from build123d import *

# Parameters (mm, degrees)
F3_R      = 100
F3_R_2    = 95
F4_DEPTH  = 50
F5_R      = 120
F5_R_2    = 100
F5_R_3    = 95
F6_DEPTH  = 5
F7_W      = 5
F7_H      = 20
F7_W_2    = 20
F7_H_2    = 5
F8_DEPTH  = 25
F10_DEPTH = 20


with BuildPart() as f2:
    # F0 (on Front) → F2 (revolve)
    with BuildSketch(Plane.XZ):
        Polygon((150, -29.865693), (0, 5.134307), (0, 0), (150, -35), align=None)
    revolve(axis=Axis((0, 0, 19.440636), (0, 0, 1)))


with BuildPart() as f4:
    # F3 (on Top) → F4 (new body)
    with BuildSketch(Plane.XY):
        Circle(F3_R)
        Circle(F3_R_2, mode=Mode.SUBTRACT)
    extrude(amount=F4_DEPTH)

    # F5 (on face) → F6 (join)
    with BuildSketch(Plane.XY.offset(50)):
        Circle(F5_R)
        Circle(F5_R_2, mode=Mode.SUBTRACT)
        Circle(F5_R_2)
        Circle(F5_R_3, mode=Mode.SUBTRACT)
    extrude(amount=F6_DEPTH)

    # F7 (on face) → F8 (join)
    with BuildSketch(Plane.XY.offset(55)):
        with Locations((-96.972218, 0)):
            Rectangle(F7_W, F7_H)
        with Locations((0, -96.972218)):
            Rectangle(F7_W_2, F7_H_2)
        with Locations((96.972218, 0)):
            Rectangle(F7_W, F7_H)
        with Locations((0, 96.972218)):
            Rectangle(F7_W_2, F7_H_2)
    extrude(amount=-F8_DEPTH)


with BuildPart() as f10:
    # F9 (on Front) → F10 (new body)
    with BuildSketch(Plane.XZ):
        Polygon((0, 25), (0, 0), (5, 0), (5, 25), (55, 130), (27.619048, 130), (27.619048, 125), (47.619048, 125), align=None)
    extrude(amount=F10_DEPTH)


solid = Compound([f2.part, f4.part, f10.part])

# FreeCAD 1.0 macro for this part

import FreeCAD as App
import Part
import Sketcher

V = App.Vector
Q = App.Units.Quantity

doc = App.newDocument("Part")
params = doc.addObject("Spreadsheet::Sheet", "Params")
for row, (alias, value) in enumerate([
    ("revolution_angle", "360 deg"),
    ("sketch2_diameter", "200 mm"),
    ("sketch2_diameter2", "190 mm"),
    ("pad1_length", "50 mm"),
    ("sketch3_diameter", "240 mm"),
    ("sketch3_diameter2", "190 mm"),
    ("pad2_length", "5 mm"),
    ("sketch4_width", "5 mm"),
    ("sketch4_width2", "20 mm"),
    ("pad3_length", "25 mm"),
    ("sketch5_width", "5 mm"),
    ("sketch5_width2", "20 mm"),
    ("sketch5_height", "25 mm"),
    ("pad4_length", "20 mm"),
], start=1):
    params.set(f"A{row}", alias)
    params.set(f"B{row}", "=" + value)
    params.setAlias(f"B{row}", alias)

body = doc.addObject("PartDesign::Body", "Body")

# Sketch on XZ plane
sketch1 = body.newObject("Sketcher::SketchObject", "Sketch")
sketch1.AttachmentSupport = (doc.getObject("XZ_Plane"), [""])
sketch1.MapMode = "FlatFace"
sketch1.addGeometry([
    Part.LineSegment(V(150, -30, 0), V(0, 5, 0)),
    Part.LineSegment(V(0, 5, 0), V(0, 0, 0)),
    Part.LineSegment(V(0, 0, 0), V(150, -35, 0)),
    Part.LineSegment(V(150, -35, 0), V(150, -30, 0)),
], False)
sketch1.addConstraint([
    Sketcher.Constraint("Coincident", 0, 2, 1, 1),
    Sketcher.Constraint("Coincident", 1, 2, 2, 1),
    Sketcher.Constraint("Coincident", 2, 2, 3, 1),
    Sketcher.Constraint("Coincident", 3, 2, 0, 1),
    Sketcher.Constraint("Vertical", 1),
    Sketcher.Constraint("Vertical", 3),
    Sketcher.Constraint("Coincident", 1, 2, -1, 1),
    Sketcher.Constraint("Parallel", 0, 2),
    Sketcher.Constraint("DistanceX", -1, 1, 2, 2, Q("150 mm")),
    Sketcher.Constraint("DistanceY", 2, 2, -1, 1, Q("35 mm")),
    Sketcher.Constraint("DistanceY", 1, 2, 1, 1, Q("5.134307 mm")),
])
revolution = body.newObject("PartDesign::Revolution", "Revolution")
revolution.Profile = sketch1
revolution.ReferenceAxis = (sketch1, ["V_Axis"])
revolution.setExpression("Angle", "Params.revolution_angle")
body2 = doc.addObject("PartDesign::Body", "Body001")

# Sketch on XY plane
sketch2 = body2.newObject("Sketcher::SketchObject", "Sketch001")
sketch2.AttachmentSupport = (doc.getObject("XY_Plane001"), [""])
sketch2.MapMode = "FlatFace"
sketch2.addGeometry([
    Part.Circle(V(0, 0, 0), V(0, 0, 1), 100),
    Part.Circle(V(0, 0, 0), V(0, 0, 1), 95),
], False)
sketch2.addConstraint([
    Sketcher.Constraint("Coincident", 0, 3, -1, 1),
    Sketcher.Constraint("Coincident", 1, 3, -1, 1),
    Sketcher.Constraint("Diameter", 0, Q("200 mm")),
    Sketcher.Constraint("Diameter", 1, Q("190 mm")),
])
sketch2.setExpression("Constraints[2]", "Params.sketch2_diameter")
sketch2.setExpression("Constraints[3]", "Params.sketch2_diameter2")
pad1 = body2.newObject("PartDesign::Pad", "Pad")
pad1.Profile = sketch2
pad1.setExpression("Length", "Params.pad1_length")

# Sketch on XY plane
sketch3 = body2.newObject("Sketcher::SketchObject", "Sketch002")
sketch3.AttachmentSupport = (doc.getObject("XY_Plane001"), [""])
sketch3.MapMode = "FlatFace"
sketch3.AttachmentOffset = App.Placement(V(0, 0, 50), App.Rotation())
sketch3.addGeometry([
    Part.Circle(V(0, 0, 0), V(0, 0, 1), 120),
    Part.Circle(V(0, 0, 0), V(0, 0, 1), 95),
], False)
sketch3.addConstraint([
    Sketcher.Constraint("Coincident", 0, 3, -1, 1),
    Sketcher.Constraint("Coincident", 1, 3, -1, 1),
    Sketcher.Constraint("Diameter", 0, Q("240 mm")),
    Sketcher.Constraint("Diameter", 1, Q("190 mm")),
])
sketch3.setExpression("Constraints[2]", "Params.sketch3_diameter")
sketch3.setExpression("Constraints[3]", "Params.sketch3_diameter2")
pad2 = body2.newObject("PartDesign::Pad", "Pad001")
pad2.Profile = sketch3
pad2.setExpression("Length", "Params.pad2_length")

# Sketch on XY plane
sketch4 = body2.newObject("Sketcher::SketchObject", "Sketch003")
sketch4.AttachmentSupport = (doc.getObject("XY_Plane001"), [""])
sketch4.MapMode = "FlatFace"
sketch4.AttachmentOffset = App.Placement(V(0, 0, 55), App.Rotation())
sketch4.addGeometry([
    Part.LineSegment(V(-99, 10, 0), V(-99, -10, 0)),  # 0
    Part.LineSegment(V(-99, -10, 0), V(-94, -10, 0)),  # 1
    Part.LineSegment(V(-94, -10, 0), V(-94, 10, 0)),  # 2
    Part.LineSegment(V(-94, 10, 0), V(-99, 10, 0)),  # 3
    Part.LineSegment(V(-10, -94, 0), V(-10, -99, 0)),  # 4
    Part.LineSegment(V(-10, -99, 0), V(10, -99, 0)),  # 5
    Part.LineSegment(V(10, -99, 0), V(10, -94, 0)),  # 6
    Part.LineSegment(V(10, -94, 0), V(-10, -94, 0)),  # 7
    Part.LineSegment(V(94, 10, 0), V(94, -10, 0)),  # 8
    Part.LineSegment(V(94, -10, 0), V(99, -10, 0)),  # 9
    Part.LineSegment(V(99, -10, 0), V(99, 10, 0)),  # 10
    Part.LineSegment(V(99, 10, 0), V(94, 10, 0)),  # 11
    Part.LineSegment(V(-10, 99, 0), V(-10, 94, 0)),  # 12
    Part.LineSegment(V(-10, 94, 0), V(10, 94, 0)),  # 13
    Part.LineSegment(V(10, 94, 0), V(10, 99, 0)),  # 14
    Part.LineSegment(V(10, 99, 0), V(-10, 99, 0)),  # 15
], False)
sketch4.addConstraint([
    Sketcher.Constraint("Coincident", 0, 2, 1, 1),
    Sketcher.Constraint("Coincident", 1, 2, 2, 1),
    Sketcher.Constraint("Coincident", 2, 2, 3, 1),
    Sketcher.Constraint("Coincident", 3, 2, 0, 1),
    Sketcher.Constraint("Coincident", 4, 2, 5, 1),
    Sketcher.Constraint("Coincident", 5, 2, 6, 1),
    Sketcher.Constraint("Coincident", 6, 2, 7, 1),
    Sketcher.Constraint("Coincident", 7, 2, 4, 1),
    Sketcher.Constraint("Coincident", 8, 2, 9, 1),
    Sketcher.Constraint("Coincident", 9, 2, 10, 1),
    Sketcher.Constraint("Coincident", 10, 2, 11, 1),
    Sketcher.Constraint("Coincident", 11, 2, 8, 1),
    Sketcher.Constraint("Coincident", 12, 2, 13, 1),
    Sketcher.Constraint("Coincident", 13, 2, 14, 1),
    Sketcher.Constraint("Coincident", 14, 2, 15, 1),
    Sketcher.Constraint("Coincident", 15, 2, 12, 1),
    Sketcher.Constraint("Vertical", 0),
    Sketcher.Constraint("Horizontal", 1),
    Sketcher.Constraint("Vertical", 2),
    Sketcher.Constraint("Horizontal", 3),
    Sketcher.Constraint("Vertical", 4),
    Sketcher.Constraint("Horizontal", 5),
    Sketcher.Constraint("Vertical", 6),
    Sketcher.Constraint("Horizontal", 7),
    Sketcher.Constraint("Vertical", 8),
    Sketcher.Constraint("Horizontal", 9),
    Sketcher.Constraint("Vertical", 10),
    Sketcher.Constraint("Horizontal", 11),
    Sketcher.Constraint("Vertical", 12),
    Sketcher.Constraint("Horizontal", 13),
    Sketcher.Constraint("Vertical", 14),
    Sketcher.Constraint("Horizontal", 15),
    Sketcher.Constraint("Symmetric", 2, 2, 8, 2, -1, 1),
    Sketcher.Constraint("Symmetric", 0, 2, 10, 2, -1, 1),
    Sketcher.Constraint("Symmetric", 6, 2, 12, 2, -1, 1),
    Sketcher.Constraint("Symmetric", 4, 2, 14, 2, -1, 1),
    Sketcher.Constraint("Horizontal", 1, 2, 8, 2),
    Sketcher.Constraint("Vertical", 7, 2, 12, 2),
    Sketcher.Constraint("Equal", 15, 0),
    Sketcher.Constraint("Equal", 11, 4),
    Sketcher.Constraint("DistanceX", 1, 1, 1, 2, Q("5 mm")),
    Sketcher.Constraint("DistanceX", 5, 1, 5, 2, Q("20 mm")),
    Sketcher.Constraint("DistanceX", 0, 2, -1, 1, Q("99.472218 mm")),
    Sketcher.Constraint("DistanceY", 4, 2, -1, 1, Q("99.472218 mm")),
])
sketch4.setExpression("Constraints[40]", "Params.sketch4_width")
sketch4.setExpression("Constraints[41]", "Params.sketch4_width2")
pad3 = body2.newObject("PartDesign::Pad", "Pad002")
pad3.Profile = sketch4
pad3.setExpression("Length", "Params.pad3_length")
pad3.Reversed = True
body3 = doc.addObject("PartDesign::Body", "Body002")

# Sketch on XZ plane
sketch5 = body3.newObject("Sketcher::SketchObject", "Sketch004")
sketch5.AttachmentSupport = (doc.getObject("XZ_Plane002"), [""])
sketch5.MapMode = "FlatFace"
sketch5.addGeometry([
    Part.LineSegment(V(0, 25, 0), V(0, 0, 0)),  # 0
    Part.LineSegment(V(0, 0, 0), V(5, 0, 0)),  # 1
    Part.LineSegment(V(5, 0, 0), V(5, 25, 0)),  # 2
    Part.LineSegment(V(5, 25, 0), V(55, 130, 0)),  # 3
    Part.LineSegment(V(55, 130, 0), V(28, 130, 0)),  # 4
    Part.LineSegment(V(28, 130, 0), V(28, 125, 0)),  # 5
    Part.LineSegment(V(28, 125, 0), V(48, 125, 0)),  # 6
    Part.LineSegment(V(48, 125, 0), V(0, 25, 0)),  # 7
], False)
sketch5.addConstraint([
    Sketcher.Constraint("Coincident", 0, 2, 1, 1),
    Sketcher.Constraint("Coincident", 1, 2, 2, 1),
    Sketcher.Constraint("Coincident", 2, 2, 3, 1),
    Sketcher.Constraint("Coincident", 3, 2, 4, 1),
    Sketcher.Constraint("Coincident", 4, 2, 5, 1),
    Sketcher.Constraint("Coincident", 5, 2, 6, 1),
    Sketcher.Constraint("Coincident", 6, 2, 7, 1),
    Sketcher.Constraint("Coincident", 7, 2, 0, 1),
    Sketcher.Constraint("Vertical", 0),
    Sketcher.Constraint("Horizontal", 1),
    Sketcher.Constraint("Vertical", 2),
    Sketcher.Constraint("Horizontal", 4),
    Sketcher.Constraint("Vertical", 5),
    Sketcher.Constraint("Horizontal", 6),
    Sketcher.Constraint("Coincident", 0, 2, -1, 1),
    Sketcher.Constraint("Parallel", 3, 7),
    Sketcher.Constraint("Horizontal", 2, 2, 7, 2),
    Sketcher.Constraint("Equal", 1, 5),
    Sketcher.Constraint("DistanceX", 1, 1, 1, 2, Q("5 mm")),
    Sketcher.Constraint("DistanceX", 6, 1, 6, 2, Q("20 mm")),
    Sketcher.Constraint("DistanceY", 0, 2, 0, 1, Q("25 mm")),
    Sketcher.Constraint("DistanceX", -1, 1, 3, 2, Q("55 mm")),
    Sketcher.Constraint("DistanceY", -1, 1, 3, 2, Q("130 mm")),
])
sketch5.setExpression("Constraints[18]", "Params.sketch5_width")
sketch5.setExpression("Constraints[19]", "Params.sketch5_width2")
sketch5.setExpression("Constraints[20]", "Params.sketch5_height")
pad4 = body3.newObject("PartDesign::Pad", "Pad003")
pad4.Profile = sketch5
pad4.setExpression("Length", "Params.pad4_length")

doc.recompute()
